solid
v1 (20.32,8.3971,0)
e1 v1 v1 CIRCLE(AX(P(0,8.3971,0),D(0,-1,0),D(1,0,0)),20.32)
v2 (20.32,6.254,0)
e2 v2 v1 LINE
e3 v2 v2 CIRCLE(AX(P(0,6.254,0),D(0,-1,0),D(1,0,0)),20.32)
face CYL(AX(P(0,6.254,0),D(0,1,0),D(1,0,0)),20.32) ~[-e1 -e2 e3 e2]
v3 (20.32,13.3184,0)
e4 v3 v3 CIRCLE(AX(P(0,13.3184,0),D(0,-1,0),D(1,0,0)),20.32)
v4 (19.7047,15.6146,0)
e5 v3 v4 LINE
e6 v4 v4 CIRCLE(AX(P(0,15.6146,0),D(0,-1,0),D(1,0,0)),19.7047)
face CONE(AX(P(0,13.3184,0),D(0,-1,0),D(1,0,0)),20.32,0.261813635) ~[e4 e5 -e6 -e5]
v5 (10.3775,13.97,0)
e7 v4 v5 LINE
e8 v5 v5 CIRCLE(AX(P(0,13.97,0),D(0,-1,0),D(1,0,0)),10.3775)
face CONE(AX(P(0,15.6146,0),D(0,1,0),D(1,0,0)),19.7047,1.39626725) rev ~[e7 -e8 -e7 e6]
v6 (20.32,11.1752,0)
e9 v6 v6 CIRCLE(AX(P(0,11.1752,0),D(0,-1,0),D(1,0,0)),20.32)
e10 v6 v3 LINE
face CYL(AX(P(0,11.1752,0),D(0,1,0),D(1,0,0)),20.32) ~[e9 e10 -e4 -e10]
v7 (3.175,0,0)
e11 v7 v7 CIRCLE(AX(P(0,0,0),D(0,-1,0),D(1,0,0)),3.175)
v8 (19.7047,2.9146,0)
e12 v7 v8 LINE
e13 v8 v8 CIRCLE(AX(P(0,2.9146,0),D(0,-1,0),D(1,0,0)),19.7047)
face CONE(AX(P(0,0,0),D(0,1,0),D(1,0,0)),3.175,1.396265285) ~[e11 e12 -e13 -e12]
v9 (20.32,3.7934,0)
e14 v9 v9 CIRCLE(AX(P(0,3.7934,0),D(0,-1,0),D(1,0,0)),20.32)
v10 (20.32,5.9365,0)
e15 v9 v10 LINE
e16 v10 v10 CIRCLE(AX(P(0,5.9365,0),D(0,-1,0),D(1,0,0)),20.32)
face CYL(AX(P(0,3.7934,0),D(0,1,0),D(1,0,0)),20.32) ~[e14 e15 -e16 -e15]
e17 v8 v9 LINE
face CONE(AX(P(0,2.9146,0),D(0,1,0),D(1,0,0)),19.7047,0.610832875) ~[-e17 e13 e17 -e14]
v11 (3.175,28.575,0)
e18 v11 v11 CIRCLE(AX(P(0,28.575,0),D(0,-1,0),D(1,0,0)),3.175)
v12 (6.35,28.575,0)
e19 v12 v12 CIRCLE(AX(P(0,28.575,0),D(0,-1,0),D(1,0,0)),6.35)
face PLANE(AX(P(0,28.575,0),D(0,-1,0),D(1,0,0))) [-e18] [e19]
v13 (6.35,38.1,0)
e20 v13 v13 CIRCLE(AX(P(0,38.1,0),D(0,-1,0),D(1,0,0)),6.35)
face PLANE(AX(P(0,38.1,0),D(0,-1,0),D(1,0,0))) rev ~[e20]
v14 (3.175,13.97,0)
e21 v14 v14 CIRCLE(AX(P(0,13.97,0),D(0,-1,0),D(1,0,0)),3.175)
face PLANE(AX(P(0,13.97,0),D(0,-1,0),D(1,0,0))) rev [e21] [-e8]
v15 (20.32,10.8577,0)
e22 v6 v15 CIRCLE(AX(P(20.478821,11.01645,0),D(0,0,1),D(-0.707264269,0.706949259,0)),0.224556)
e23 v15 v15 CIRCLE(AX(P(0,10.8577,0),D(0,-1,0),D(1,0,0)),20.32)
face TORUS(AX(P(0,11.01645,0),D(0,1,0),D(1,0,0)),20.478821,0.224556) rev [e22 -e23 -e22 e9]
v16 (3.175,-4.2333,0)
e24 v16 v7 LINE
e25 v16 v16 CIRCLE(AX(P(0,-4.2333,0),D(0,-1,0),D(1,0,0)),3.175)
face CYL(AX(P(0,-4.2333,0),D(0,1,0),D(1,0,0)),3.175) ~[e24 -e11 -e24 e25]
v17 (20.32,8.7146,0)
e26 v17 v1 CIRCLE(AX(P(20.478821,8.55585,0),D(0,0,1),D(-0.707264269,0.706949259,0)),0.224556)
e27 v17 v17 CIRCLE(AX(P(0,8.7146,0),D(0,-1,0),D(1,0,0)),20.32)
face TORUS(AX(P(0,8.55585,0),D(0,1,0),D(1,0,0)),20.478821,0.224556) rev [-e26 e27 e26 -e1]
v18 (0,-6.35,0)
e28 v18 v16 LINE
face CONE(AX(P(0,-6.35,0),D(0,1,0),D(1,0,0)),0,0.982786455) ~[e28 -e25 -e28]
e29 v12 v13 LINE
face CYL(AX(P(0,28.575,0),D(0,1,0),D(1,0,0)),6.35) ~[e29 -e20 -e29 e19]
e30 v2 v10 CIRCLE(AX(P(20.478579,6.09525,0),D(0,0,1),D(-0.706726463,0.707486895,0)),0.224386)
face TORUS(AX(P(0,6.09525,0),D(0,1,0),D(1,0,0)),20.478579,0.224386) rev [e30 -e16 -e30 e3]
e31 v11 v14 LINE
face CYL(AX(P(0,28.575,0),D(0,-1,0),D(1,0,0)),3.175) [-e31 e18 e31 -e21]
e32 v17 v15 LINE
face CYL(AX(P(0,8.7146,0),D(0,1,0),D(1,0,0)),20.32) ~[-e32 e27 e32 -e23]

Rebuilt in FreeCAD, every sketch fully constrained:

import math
import FreeCAD as App
import Part
import Sketcher

V = App.Vector
Q = App.Units.Quantity

doc = App.newDocument("Part")
params = doc.addObject("Spreadsheet::Sheet", "Params")
for row, (alias, value) in enumerate([
    ("sketch1_width", "0.25 in"),
    ("sketch1_height", "1.75 in"),
    ("sketch1_width2", "0.125 in"),
    ("sketch1_height2", "0.375 in"),
    ("sketch1_height3", "0.575 in"),
    ("revolution_angle", "360 deg"),
], start=1):
    params.set(f"A{row}", alias)
    params.set(f"B{row}", "=" + value)
    params.setAlias(f"B{row}", alias)

body = doc.addObject("PartDesign::Body", "Body")

sketch1 = body.newObject("Sketcher::SketchObject", "Sketch")
sketch1.AttachmentSupport = (doc.getObject("XY_Plane"), [""])
sketch1.MapMode = "FlatFace"
sketch1.addGeometry([
    Part.LineSegment(V(0, 38.1, 0), V(0, -6.35, 0)),
    Part.LineSegment(V(0, -6.35, 0), V(3.17, -4.23, 0)),
    Part.LineSegment(V(3.17, -4.23, 0), V(3.17, 0, 0)),
    Part.LineSegment(V(3.17, 0, 0), V(19.7, 2.91, 0)),
    Part.LineSegment(V(19.7, 2.91, 0), V(20.32, 3.79, 0)),
    Part.LineSegment(V(20.32, 3.79, 0), V(20.32, 5.94, 0)),
    Part.ArcOfCircle(Part.Circle(V(20.48, 6.1, 0), V(0, 0, 1), 0.22), math.radians(135), math.radians(225)),
    Part.LineSegment(V(20.32, 6.25, 0), V(20.32, 8.4, 0)),
    Part.ArcOfCircle(Part.Circle(V(20.48, 8.56, 0), V(0, 0, 1), 0.22), math.radians(135), math.radians(225)),
    Part.LineSegment(V(20.32, 8.71, 0), V(20.32, 10.86, 0)),
    Part.ArcOfCircle(Part.Circle(V(20.48, 11.02, 0), V(0, 0, 1), 0.22), math.radians(135), math.radians(225)),
    Part.LineSegment(V(20.32, 11.18, 0), V(20.32, 13.32, 0)),
    Part.LineSegment(V(20.32, 13.32, 0), V(19.7, 15.61, 0)),
    Part.LineSegment(V(19.7, 15.61, 0), V(10.38, 13.97, 0)),
    Part.LineSegment(V(10.38, 13.97, 0), V(3.17, 13.97, 0)),
    Part.LineSegment(V(3.17, 13.97, 0), V(3.17, 28.57, 0)),
    Part.LineSegment(V(3.17, 28.57, 0), V(6.35, 28.57, 0)),
    Part.LineSegment(V(6.35, 28.57, 0), V(6.35, 38.1, 0)),
    Part.LineSegment(V(6.35, 38.1, 0), V(0, 38.1, 0)),
], False)
sketch1.addConstraint([
    Sketcher.Constraint("Coincident", 0, 2, 1, 1),
    Sketcher.Constraint("Coincident", 1, 2, 2, 1),
    Sketcher.Constraint("Coincident", 2, 2, 3, 1),
    Sketcher.Constraint("Coincident", 3, 2, 4, 1),
    Sketcher.Constraint("Coincident", 4, 2, 5, 1),
    Sketcher.Constraint("Coincident", 5, 2, 6, 2),
    Sketcher.Constraint("Coincident", 6, 1, 7, 1),
    Sketcher.Constraint("Coincident", 7, 2, 8, 2),
    Sketcher.Constraint("Coincident", 8, 1, 9, 1),
    Sketcher.Constraint("Coincident", 9, 2, 10, 2),
    Sketcher.Constraint("Coincident", 10, 1, 11, 1),
    Sketcher.Constraint("Coincident", 11, 2, 12, 1),
    Sketcher.Constraint("Coincident", 12, 2, 13, 1),
    Sketcher.Constraint("Coincident", 13, 2, 14, 1),
    Sketcher.Constraint("Coincident", 14, 2, 15, 1),
    Sketcher.Constraint("Coincident", 15, 2, 16, 1),
    Sketcher.Constraint("Coincident", 16, 2, 17, 1),
    Sketcher.Constraint("Coincident", 17, 2, 18, 1),
    Sketcher.Constraint("Coincident", 18, 2, 0, 1),
    Sketcher.Constraint("Vertical", 0),
    Sketcher.Constraint("Vertical", 2),
    Sketcher.Constraint("Vertical", 5),
    Sketcher.Constraint("Vertical", 7),
    Sketcher.Constraint("Vertical", 9),
    Sketcher.Constraint("Vertical", 11),
    Sketcher.Constraint("Horizontal", 14),
    Sketcher.Constraint("Vertical", 15),
    Sketcher.Constraint("Horizontal", 16),
    Sketcher.Constraint("Vertical", 17),
    Sketcher.Constraint("Horizontal", 18),
    Sketcher.Constraint("Equal", 6, 8),
    Sketcher.Constraint("Equal", 8, 10),
    Sketcher.Constraint("PointOnObject", 0, 2, -2),
    Sketcher.Constraint("PointOnObject", 2, 2, -1),
    Sketcher.Constraint("Parallel", 3, 13),
    Sketcher.Constraint("Vertical", 6, 3, 8, 3),
    Sketcher.Constraint("Vertical", 8, 3, 10, 3),
    Sketcher.Constraint("Vertical", 5, 2, 6, 1),
    Sketcher.Constraint("Vertical", 7, 2, 8, 1),
    Sketcher.Constraint("Vertical", 9, 2, 10, 1),
    Sketcher.Constraint("Vertical", 3, 2, 12, 2),
    Sketcher.Constraint("Vertical", 2, 2, 14, 2),
    Sketcher.Constraint("Equal", 5, 7),
    Sketcher.Constraint("Equal", 7, 9),
    Sketcher.Constraint("Equal", 9, 11),
    Sketcher.Constraint("Angle", 3, Q("10 deg")),
    Sketcher.Constraint("DistanceX", 18, 2, 18, 1, Q("0.25 in")),
    Sketcher.Constraint("DistanceY", 0, 2, 0, 1, Q("1.75 in")),
    Sketcher.Constraint("DistanceX", -1, 1, 4, 2, Q("0.8 in")),
    Sketcher.Constraint("DistanceX", 16, 1, 16, 2, Q("0.125 in")),
    Sketcher.Constraint("DistanceY", 17, 1, 17, 2, Q("0.375 in")),
    Sketcher.Constraint("DistanceY", 0, 2, -1, 1, Q("0.25 in")),
    Sketcher.Constraint("Angle", 12, Q("105.0008 deg")),
    Sketcher.Constraint("DistanceY", 2, 1, 2, 2, Q("4.2333 mm")),
    Sketcher.Constraint("DistanceY", 5, 2, 10, 3, Q("0.2 in")),
    Sketcher.Constraint("DistanceY", 5, 2, 6, 1, Q("0.0125 in")),
    Sketcher.Constraint("DistanceY", 15, 1, 15, 2, Q("0.575 in")),
    Sketcher.Constraint("Radius", 6, Q("0.2245 mm")),
    Sketcher.Constraint("Distance", 12, Q("0.0936 in")),
    Sketcher.Constraint("DistanceX", 14, 2, 14, 1, Q("7.2025 mm")),
])
sketch1.setExpression("Constraints[46]", "Params.sketch1_width")
sketch1.setExpression("Constraints[47]", "Params.sketch1_height")
sketch1.setExpression("Constraints[49]", "Params.sketch1_width2")
sketch1.setExpression("Constraints[50]", "Params.sketch1_height2")
sketch1.setExpression("Constraints[56]", "Params.sketch1_height3")
revolution = body.newObject("PartDesign::Revolution", "Revolution")
revolution.Profile = sketch1
revolution.ReferenceAxis = (sketch1, ["V_Axis"])
revolution.setExpression("Angle", "Params.revolution_angle")

doc.recompute()
